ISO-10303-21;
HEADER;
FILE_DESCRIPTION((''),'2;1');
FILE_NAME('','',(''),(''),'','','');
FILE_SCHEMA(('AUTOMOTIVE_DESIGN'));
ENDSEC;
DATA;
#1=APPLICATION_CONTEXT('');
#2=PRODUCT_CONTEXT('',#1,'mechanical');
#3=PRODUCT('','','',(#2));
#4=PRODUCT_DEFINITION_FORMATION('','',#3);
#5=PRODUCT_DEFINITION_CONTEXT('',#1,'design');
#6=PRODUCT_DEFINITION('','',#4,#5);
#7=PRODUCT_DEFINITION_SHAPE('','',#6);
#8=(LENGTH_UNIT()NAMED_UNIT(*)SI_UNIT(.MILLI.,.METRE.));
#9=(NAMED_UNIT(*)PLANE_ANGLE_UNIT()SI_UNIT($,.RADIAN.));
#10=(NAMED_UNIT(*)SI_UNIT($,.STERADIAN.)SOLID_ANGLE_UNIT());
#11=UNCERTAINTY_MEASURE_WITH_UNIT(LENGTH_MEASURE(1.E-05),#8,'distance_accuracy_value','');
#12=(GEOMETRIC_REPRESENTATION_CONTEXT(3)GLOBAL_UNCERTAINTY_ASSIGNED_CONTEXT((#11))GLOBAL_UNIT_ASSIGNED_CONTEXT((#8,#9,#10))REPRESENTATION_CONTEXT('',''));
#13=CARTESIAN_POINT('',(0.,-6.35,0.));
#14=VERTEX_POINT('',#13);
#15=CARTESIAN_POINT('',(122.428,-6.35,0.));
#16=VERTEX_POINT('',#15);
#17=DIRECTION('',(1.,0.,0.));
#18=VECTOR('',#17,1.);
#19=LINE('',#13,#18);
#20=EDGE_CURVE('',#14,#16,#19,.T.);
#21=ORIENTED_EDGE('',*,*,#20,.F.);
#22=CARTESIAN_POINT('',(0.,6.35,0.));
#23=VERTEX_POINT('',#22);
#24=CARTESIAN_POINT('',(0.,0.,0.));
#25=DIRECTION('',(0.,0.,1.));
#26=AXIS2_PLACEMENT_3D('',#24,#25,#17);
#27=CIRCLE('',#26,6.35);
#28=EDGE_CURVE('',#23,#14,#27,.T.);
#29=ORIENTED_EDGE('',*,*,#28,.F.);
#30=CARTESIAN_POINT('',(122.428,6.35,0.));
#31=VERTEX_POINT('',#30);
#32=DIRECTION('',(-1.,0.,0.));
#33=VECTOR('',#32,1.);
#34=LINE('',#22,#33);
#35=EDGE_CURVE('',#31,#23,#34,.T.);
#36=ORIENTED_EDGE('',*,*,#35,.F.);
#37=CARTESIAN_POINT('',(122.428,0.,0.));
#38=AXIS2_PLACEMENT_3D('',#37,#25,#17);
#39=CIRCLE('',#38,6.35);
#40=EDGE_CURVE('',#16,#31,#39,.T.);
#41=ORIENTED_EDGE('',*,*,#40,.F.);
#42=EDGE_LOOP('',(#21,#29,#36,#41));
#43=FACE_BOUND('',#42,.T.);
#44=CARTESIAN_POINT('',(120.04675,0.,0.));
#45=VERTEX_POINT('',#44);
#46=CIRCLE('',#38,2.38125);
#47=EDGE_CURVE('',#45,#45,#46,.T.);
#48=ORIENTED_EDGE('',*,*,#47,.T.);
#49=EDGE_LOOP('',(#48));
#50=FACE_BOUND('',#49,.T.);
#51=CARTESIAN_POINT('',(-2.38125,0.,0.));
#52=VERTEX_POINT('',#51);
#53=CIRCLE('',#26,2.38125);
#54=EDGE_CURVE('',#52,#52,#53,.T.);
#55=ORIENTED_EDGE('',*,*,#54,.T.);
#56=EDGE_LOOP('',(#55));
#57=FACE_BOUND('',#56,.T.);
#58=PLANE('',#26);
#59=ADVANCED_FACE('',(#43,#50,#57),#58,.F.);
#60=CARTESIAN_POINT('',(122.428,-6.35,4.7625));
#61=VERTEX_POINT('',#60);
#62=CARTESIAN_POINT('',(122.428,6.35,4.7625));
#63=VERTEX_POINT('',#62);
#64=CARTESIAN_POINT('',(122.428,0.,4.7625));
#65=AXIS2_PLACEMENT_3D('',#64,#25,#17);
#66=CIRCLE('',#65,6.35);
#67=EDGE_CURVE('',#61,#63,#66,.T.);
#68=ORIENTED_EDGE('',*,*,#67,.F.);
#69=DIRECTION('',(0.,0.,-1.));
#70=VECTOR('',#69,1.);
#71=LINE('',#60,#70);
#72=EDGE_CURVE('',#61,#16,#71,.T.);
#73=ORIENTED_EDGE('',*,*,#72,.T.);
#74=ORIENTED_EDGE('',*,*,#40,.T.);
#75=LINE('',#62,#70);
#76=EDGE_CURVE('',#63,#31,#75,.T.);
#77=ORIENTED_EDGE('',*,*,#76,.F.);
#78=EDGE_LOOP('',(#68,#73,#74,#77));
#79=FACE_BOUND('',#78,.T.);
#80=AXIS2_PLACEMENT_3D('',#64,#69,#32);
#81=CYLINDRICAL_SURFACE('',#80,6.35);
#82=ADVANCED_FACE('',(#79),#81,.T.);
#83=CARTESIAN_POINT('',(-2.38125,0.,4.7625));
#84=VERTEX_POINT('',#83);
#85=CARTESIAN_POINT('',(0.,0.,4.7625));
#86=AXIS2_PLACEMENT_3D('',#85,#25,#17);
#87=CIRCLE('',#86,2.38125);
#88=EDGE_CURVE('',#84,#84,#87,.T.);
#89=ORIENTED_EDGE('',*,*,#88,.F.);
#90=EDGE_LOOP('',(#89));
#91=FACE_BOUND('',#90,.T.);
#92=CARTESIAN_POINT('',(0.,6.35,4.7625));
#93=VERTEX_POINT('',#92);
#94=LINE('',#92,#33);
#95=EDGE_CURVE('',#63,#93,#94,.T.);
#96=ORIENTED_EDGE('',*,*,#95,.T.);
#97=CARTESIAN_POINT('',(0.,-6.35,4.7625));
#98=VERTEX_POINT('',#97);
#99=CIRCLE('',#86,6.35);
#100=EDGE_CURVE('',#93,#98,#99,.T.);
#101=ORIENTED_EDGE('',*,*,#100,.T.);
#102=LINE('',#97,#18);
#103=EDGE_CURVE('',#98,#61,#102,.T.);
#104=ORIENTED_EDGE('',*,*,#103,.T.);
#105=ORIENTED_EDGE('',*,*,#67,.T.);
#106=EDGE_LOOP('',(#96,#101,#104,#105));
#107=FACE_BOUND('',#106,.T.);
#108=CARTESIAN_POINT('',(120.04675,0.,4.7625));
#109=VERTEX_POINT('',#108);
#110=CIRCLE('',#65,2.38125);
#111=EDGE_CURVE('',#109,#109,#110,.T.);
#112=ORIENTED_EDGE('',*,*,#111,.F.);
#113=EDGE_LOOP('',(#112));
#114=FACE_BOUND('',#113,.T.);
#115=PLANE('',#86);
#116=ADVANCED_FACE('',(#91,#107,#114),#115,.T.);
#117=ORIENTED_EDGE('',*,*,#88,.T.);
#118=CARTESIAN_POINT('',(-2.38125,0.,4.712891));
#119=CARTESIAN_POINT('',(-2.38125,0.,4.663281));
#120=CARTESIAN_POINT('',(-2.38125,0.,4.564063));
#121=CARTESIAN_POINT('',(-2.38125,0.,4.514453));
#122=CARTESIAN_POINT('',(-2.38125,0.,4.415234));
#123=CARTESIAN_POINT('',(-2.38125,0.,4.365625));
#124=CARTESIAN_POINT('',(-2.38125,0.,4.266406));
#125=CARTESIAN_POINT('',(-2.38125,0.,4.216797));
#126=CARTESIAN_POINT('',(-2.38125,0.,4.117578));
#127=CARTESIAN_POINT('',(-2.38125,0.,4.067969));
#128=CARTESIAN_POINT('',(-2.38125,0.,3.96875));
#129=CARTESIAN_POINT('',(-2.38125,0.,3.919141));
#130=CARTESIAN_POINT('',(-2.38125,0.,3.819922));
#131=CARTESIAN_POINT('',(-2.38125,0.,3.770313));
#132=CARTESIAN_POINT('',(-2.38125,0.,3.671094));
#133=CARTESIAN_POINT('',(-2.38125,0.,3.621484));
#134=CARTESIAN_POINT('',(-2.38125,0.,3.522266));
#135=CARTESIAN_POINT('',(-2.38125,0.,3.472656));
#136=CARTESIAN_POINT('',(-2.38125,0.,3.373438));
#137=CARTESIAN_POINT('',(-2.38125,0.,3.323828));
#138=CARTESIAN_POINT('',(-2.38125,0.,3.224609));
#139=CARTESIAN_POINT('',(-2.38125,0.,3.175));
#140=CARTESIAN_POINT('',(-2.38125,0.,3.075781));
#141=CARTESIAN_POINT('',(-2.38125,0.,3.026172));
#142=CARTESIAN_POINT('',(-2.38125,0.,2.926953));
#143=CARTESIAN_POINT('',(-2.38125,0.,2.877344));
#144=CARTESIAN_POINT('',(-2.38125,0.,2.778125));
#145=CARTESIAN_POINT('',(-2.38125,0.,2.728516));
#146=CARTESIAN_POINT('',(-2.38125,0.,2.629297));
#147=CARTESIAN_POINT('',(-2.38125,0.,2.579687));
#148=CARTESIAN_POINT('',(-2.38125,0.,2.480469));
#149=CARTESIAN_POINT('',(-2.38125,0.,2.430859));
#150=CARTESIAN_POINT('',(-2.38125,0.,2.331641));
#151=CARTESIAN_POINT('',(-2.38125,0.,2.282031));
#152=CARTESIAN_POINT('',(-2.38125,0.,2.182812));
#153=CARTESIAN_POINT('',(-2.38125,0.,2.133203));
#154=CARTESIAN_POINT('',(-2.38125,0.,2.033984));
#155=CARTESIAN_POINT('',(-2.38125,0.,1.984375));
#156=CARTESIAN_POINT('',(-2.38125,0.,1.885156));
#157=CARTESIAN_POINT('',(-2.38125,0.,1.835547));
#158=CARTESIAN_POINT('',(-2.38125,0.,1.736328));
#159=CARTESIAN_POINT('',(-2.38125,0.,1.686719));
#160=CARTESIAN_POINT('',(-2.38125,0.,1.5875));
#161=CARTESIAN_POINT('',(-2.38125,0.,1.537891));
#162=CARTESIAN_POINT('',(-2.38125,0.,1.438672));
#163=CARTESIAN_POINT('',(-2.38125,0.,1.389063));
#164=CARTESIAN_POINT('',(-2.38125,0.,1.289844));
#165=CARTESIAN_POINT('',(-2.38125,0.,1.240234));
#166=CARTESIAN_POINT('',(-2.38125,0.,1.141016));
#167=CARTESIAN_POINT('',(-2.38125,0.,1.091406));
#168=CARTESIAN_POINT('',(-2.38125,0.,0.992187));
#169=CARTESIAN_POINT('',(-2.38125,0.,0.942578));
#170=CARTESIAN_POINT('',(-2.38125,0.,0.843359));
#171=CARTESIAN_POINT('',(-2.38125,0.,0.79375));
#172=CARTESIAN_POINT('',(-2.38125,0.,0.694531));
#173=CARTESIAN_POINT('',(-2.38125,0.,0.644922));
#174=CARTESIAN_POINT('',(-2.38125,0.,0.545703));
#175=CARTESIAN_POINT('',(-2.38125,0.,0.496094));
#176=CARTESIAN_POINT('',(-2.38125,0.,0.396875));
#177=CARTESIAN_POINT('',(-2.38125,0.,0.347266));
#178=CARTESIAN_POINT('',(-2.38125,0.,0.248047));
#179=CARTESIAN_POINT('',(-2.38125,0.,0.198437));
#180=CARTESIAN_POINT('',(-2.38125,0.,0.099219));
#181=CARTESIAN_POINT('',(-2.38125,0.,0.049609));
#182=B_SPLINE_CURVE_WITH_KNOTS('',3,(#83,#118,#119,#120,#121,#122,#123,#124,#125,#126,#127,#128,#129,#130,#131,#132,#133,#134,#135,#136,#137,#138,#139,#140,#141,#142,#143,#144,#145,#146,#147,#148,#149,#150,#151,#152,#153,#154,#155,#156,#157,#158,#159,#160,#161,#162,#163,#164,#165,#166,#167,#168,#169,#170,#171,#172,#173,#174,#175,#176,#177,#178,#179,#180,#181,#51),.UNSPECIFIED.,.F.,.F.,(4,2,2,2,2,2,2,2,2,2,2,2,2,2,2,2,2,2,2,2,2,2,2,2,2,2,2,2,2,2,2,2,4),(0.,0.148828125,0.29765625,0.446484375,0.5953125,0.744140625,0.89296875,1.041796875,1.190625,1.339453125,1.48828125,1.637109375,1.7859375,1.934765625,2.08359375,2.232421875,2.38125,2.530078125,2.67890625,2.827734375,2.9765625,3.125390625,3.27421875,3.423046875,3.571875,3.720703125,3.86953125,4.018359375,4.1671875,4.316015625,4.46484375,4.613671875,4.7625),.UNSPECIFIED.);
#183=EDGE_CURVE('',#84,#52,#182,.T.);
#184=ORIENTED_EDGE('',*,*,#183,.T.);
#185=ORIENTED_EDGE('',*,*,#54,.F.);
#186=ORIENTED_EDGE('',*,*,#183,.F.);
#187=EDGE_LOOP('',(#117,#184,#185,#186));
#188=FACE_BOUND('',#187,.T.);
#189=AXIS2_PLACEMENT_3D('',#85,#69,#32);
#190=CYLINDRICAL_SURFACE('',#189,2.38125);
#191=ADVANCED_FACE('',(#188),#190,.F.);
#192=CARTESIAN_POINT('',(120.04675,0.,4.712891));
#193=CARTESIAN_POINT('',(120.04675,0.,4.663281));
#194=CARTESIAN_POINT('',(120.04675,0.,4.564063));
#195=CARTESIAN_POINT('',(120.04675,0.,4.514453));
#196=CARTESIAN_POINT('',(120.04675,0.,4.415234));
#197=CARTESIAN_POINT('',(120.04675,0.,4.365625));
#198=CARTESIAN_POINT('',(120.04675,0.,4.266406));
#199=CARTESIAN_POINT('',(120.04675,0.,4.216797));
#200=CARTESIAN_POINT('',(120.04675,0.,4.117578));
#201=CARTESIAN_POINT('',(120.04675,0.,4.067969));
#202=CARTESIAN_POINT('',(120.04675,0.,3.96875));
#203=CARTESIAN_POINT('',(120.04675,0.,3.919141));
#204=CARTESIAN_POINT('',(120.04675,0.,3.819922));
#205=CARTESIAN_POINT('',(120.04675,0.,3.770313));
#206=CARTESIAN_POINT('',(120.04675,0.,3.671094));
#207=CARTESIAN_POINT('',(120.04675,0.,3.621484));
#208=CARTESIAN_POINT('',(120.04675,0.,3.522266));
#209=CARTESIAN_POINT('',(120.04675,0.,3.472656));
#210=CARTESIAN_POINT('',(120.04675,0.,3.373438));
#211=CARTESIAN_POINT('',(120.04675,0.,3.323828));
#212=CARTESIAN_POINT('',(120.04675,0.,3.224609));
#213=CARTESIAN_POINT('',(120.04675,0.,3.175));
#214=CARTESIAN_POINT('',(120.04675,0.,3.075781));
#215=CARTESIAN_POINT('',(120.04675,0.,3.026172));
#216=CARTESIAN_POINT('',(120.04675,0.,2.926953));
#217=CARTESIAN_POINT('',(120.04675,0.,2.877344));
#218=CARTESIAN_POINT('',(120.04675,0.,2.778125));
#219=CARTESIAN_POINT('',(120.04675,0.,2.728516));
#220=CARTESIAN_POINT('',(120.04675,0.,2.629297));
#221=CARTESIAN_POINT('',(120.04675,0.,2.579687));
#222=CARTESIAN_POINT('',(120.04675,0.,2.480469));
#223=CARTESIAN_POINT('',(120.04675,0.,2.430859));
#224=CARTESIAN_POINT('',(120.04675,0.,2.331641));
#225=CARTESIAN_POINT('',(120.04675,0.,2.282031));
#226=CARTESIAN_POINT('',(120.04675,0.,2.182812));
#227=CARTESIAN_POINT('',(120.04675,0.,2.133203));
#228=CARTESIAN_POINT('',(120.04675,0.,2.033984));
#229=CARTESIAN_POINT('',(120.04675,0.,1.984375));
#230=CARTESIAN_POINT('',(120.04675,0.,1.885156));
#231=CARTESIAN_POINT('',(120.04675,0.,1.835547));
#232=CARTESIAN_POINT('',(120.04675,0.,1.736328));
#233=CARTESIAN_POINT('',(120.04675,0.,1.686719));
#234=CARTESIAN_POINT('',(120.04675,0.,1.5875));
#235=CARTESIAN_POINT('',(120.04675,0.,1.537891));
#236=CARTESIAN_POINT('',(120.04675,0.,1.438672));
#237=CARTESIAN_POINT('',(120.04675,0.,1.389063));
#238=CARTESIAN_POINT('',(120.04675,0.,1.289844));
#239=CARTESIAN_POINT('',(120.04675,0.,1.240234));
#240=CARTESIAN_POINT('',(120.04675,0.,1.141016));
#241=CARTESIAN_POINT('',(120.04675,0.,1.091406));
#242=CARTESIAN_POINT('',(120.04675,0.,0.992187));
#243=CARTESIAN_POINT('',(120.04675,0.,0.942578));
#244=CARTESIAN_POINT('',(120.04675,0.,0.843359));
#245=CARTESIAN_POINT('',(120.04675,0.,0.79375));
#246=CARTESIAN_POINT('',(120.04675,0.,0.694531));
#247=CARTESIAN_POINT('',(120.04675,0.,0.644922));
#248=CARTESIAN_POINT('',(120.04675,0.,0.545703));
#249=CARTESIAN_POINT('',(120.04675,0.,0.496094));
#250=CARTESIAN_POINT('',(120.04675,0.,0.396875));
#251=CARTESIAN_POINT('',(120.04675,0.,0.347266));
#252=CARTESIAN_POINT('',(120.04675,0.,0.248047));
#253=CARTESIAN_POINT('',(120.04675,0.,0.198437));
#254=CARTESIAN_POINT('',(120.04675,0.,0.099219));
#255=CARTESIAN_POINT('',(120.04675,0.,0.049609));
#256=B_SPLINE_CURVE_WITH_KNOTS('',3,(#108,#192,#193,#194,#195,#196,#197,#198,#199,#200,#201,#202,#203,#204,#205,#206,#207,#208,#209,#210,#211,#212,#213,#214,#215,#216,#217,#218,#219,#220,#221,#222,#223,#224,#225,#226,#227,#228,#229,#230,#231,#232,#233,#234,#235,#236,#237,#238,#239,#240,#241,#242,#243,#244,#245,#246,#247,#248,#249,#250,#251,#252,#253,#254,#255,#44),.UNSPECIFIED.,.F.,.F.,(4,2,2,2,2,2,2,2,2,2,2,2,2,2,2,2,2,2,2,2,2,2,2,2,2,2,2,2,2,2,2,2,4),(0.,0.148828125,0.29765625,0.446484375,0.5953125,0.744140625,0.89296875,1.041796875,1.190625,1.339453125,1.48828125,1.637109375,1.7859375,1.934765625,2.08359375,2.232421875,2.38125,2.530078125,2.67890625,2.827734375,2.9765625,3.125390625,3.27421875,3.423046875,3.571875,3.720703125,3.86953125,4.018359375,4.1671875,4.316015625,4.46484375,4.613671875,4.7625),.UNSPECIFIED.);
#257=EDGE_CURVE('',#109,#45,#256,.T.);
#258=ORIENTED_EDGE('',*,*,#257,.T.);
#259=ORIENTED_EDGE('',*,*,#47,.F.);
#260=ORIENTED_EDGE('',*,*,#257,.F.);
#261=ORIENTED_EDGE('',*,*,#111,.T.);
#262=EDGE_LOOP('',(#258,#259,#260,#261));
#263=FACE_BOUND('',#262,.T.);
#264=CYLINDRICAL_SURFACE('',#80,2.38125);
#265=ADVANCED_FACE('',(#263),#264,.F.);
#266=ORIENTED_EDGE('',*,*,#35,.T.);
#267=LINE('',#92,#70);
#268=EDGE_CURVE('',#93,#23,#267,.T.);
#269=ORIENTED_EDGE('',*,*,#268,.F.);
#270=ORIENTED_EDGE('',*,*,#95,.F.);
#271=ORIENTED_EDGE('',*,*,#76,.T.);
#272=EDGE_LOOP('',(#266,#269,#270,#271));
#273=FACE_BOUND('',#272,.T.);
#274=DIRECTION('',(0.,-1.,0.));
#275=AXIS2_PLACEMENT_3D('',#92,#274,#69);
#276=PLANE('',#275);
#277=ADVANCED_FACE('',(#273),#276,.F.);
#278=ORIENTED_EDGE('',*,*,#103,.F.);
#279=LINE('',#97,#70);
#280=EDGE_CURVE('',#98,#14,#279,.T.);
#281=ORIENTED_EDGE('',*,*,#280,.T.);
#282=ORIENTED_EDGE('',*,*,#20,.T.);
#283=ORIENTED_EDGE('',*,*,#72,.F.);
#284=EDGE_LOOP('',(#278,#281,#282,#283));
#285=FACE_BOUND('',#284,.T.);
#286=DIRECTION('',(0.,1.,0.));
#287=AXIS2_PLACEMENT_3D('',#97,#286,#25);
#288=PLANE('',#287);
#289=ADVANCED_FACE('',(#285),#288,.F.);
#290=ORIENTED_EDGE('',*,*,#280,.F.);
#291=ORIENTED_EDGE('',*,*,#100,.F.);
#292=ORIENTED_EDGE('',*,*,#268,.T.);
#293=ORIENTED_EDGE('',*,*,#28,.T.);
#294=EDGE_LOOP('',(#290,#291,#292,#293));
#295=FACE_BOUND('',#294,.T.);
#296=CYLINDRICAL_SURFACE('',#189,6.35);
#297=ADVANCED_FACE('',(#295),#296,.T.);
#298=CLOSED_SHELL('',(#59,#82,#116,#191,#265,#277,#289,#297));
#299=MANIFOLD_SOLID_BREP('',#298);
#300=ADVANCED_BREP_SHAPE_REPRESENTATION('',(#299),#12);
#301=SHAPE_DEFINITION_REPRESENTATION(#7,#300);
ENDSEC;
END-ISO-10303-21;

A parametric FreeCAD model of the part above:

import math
import FreeCAD as App
import Part
import Sketcher
from FreeCAD import Vector
Q = App.Units.Quantity

doc = App.newDocument("Part")
body = doc.addObject("PartDesign::Body", "Body")

# Sketch on XY plane
sketch1 = doc.addObject("Sketcher::SketchObject", "Sketch")
body.addObject(sketch1)
sketch1.AttachmentSupport = (doc.XY_Plane, [""])
sketch1.MapMode = "FlatFace"
sketch1.addGeometry([
    Part.LineSegment(Vector(122.4, 6.3, 0), Vector(0, 6.3, 0)),  # 0
    Part.ArcOfCircle(Part.Circle(Vector(0, 0, 0), Vector(0, 0, 1), 6.3), math.radians(90), math.radians(270)),  # 1
    Part.LineSegment(Vector(0, -6.3, 0), Vector(122.4, -6.3, 0)),  # 2
    Part.ArcOfCircle(Part.Circle(Vector(122.4, 0, 0), Vector(0, 0, 1), 6.3), math.radians(-90), math.radians(90)),  # 3
    Part.Circle(Vector(122.4, 0, 0), Vector(0, 0, 1), 2.4),  # 4
    Part.Circle(Vector(0, 0, 0), Vector(0, 0, 1), 2.4),  # 5
], False)
sketch1.addConstraint([
    Sketcher.Constraint("Tangent", 0, 2, 1, 1),
    Sketcher.Constraint("Tangent", 1, 2, 2, 1),
    Sketcher.Constraint("Tangent", 2, 2, 3, 1),
    Sketcher.Constraint("Tangent", 3, 2, 0, 1),
    Sketcher.Constraint("Horizontal", 0),
    Sketcher.Constraint("Horizontal", 2),
    Sketcher.Constraint("Coincident", 1, 3, -1, 1),
    Sketcher.Constraint("Coincident", 5, 3, -1, 1),
    Sketcher.Constraint("Coincident", 4, 3, 3, 3),
    Sketcher.Constraint("Equal", 4, 5),
    Sketcher.Constraint("Radius", 1, Q("0.25 in")),
    Sketcher.Constraint("Diameter", 4, Q("0.1875 in")),
    Sketcher.Constraint("DistanceX", 0, 2, 0, 1, Q("4.82 in")),
])
pad1 = doc.addObject("PartDesign::Pad", "Pad")
body.addObject(pad1)
pad1.Profile = sketch1
pad1.Length = Q("0.1875 in")

doc.recompute()
